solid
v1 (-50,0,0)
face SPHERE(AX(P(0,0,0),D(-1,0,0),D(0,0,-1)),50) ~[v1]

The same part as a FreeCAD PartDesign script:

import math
import FreeCAD as App
import Part
import Sketcher
from FreeCAD import Vector
Q = App.Units.Quantity

doc = App.newDocument("Part")
body = doc.addObject("PartDesign::Body", "Body")

sketch1 = body.newObject("Sketcher::SketchObject", "Sketch")
sketch1.AttachmentSupport = (doc.getObject("XZ_Plane"), [""])
sketch1.MapMode = "FlatFace"
sketch1.addGeometry([
    Part.LineSegment(Vector(-50, 0, 0), Vector(50, 0, 0)),
    Part.ArcOfCircle(Part.Circle(Vector(0, 0, 0), Vector(0, 0, 1), 50), math.radians(180), math.radians(360)),
], False)
sketch1.addConstraint([
    Sketcher.Constraint("Coincident", 0, 1, 1, 1),
    Sketcher.Constraint("Coincident", 1, 2, 0, 2),
    Sketcher.Constraint("Horizontal", 0),
    Sketcher.Constraint("Coincident", 1, 3, -1, 1),
    Sketcher.Constraint("PointOnObject", 0, 1, -1),
    Sketcher.Constraint("Radius", 1, Q("50 mm")),
])
revolution = body.newObject("PartDesign::Revolution", "Revolution")
revolution.Profile = sketch1
revolution.ReferenceAxis = (sketch1, ["H_Axis"])
revolution.Angle = 360

doc.recompute()
